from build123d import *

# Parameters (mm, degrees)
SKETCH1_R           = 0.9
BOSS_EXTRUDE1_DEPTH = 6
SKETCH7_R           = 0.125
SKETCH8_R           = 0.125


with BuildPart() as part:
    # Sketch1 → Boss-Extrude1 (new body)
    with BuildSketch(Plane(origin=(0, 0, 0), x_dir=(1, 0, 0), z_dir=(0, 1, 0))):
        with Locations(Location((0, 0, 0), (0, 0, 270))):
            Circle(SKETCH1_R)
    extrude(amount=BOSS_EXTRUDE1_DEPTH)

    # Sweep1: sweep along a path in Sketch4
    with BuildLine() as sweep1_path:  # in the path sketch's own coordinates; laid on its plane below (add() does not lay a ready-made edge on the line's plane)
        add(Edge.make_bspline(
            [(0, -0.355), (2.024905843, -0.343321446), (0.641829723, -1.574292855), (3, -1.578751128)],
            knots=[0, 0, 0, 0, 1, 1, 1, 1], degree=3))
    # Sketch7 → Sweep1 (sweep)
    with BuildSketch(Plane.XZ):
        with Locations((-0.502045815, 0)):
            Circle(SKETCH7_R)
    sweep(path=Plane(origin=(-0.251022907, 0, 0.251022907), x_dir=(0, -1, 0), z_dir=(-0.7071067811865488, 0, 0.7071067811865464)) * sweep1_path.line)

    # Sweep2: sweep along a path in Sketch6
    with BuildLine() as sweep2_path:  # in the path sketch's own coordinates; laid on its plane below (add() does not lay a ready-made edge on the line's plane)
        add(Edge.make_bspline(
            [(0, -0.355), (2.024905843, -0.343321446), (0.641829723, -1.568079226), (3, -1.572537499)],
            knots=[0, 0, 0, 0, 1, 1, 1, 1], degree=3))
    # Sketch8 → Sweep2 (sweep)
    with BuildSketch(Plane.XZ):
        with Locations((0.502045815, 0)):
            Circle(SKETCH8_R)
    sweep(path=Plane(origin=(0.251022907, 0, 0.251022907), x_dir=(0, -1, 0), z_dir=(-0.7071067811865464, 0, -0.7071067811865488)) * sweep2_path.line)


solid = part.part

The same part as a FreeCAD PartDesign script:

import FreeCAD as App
import Part
import Sketcher

V = App.Vector
Q = App.Units.Quantity

doc = App.newDocument("Part")
body = doc.addObject("PartDesign::Body", "Body")

sketch1 = body.newObject("Sketcher::SketchObject", "Sketch")
sketch1.AttachmentSupport = (doc.getObject("XZ_Plane"), [""])
sketch1.MapMode = "FlatFace"
sketch1.addGeometry(Part.Circle(V(0, 0, 0), V(0, 0, 1), 0.9), False)
sketch1.addConstraint([
    Sketcher.Constraint("Coincident", 0, 3, -1, 1),
    Sketcher.Constraint("Diameter", 0, Q("1.8 mm")),
])
pad1 = body.newObject("PartDesign::Pad", "Pad")
pad1.Profile = sketch1
pad1.Length = 6
pad1.Reversed = True

sketch2 = body.newObject("Sketcher::SketchObject", "Sketch001")
sketch2.AttachmentSupport = (doc.getObject("XZ_Plane"), [""])
sketch2.MapMode = "FlatFace"
sketch2.addGeometry(Part.Circle(V(-0.502046, 0, 0), V(0, 0, 1), 0.125), False)
sketch2.addConstraint([
    Sketcher.Constraint("PointOnObject", 0, 3, -1),
    Sketcher.Constraint("Diameter", 0, Q("0.25 mm")),
    Sketcher.Constraint("DistanceX", 0, 3, -1, 1, Q("0.502046 mm")),
])

sketch3 = body.newObject("Sketcher::SketchObject", "Sketch002")
sketch3.Placement = App.Placement(V(-0.251023, 0, 0.251023), App.Rotation(V(0.707106781, 0, 0.707106781), V(0, 0.999999999, 0), V(-0.707106781, 0, 0.707106781), "ZXY"))
sketch3.addGeometry(Part.BSplineCurve([V(-0.355, 0, 0), V(-0.343321, -2.024906, 0), V(-1.574293, -0.64183, 0), V(-1.578751, -3, 0)], [4, 4], [0, 1], False, 3, [1, 1, 1, 1], False), False)
sketch3.addConstraint(Sketcher.Constraint("Block", 0))
doc.recompute()

additivepipe = body.newObject("PartDesign::AdditivePipe", "AdditivePipe")
additivepipe.Profile = sketch2
additivepipe.Spine = (sketch3, ["Edge1"])

sketch4 = body.newObject("Sketcher::SketchObject", "Sketch003")
sketch4.AttachmentSupport = (doc.getObject("XZ_Plane"), [""])
sketch4.MapMode = "FlatFace"
sketch4.addGeometry(Part.Circle(V(0.502046, 0, 0), V(0, 0, 1), 0.125), False)
sketch4.addConstraint([
    Sketcher.Constraint("PointOnObject", 0, 3, -1),
    Sketcher.Constraint("Diameter", 0, Q("0.25 mm")),
    Sketcher.Constraint("DistanceX", -1, 1, 0, 3, Q("0.502046 mm")),
])

sketch5 = body.newObject("Sketcher::SketchObject", "Sketch004")
sketch5.Placement = App.Placement(V(0.251023, 0, 0.251023), App.Rotation(V(0.707106781, 0, -0.707106781), V(0, 0.999999999, 0), V(0.707106781, 0, 0.707106781), "ZXY"))
sketch5.addGeometry(Part.BSplineCurve([V(0.355, 0, 0), V(0.343321, -2.024906, 0), V(1.568079, -0.64183, 0), V(1.572537, -3, 0)], [4, 4], [0, 1], False, 3, [1, 1, 1, 1], False), False)
sketch5.addConstraint(Sketcher.Constraint("Block", 0))
doc.recompute()

additivepipe2 = body.newObject("PartDesign::AdditivePipe", "AdditivePipe001")
additivepipe2.Profile = sketch4
additivepipe2.Spine = (sketch5, ["Edge1"])

doc.recompute()
